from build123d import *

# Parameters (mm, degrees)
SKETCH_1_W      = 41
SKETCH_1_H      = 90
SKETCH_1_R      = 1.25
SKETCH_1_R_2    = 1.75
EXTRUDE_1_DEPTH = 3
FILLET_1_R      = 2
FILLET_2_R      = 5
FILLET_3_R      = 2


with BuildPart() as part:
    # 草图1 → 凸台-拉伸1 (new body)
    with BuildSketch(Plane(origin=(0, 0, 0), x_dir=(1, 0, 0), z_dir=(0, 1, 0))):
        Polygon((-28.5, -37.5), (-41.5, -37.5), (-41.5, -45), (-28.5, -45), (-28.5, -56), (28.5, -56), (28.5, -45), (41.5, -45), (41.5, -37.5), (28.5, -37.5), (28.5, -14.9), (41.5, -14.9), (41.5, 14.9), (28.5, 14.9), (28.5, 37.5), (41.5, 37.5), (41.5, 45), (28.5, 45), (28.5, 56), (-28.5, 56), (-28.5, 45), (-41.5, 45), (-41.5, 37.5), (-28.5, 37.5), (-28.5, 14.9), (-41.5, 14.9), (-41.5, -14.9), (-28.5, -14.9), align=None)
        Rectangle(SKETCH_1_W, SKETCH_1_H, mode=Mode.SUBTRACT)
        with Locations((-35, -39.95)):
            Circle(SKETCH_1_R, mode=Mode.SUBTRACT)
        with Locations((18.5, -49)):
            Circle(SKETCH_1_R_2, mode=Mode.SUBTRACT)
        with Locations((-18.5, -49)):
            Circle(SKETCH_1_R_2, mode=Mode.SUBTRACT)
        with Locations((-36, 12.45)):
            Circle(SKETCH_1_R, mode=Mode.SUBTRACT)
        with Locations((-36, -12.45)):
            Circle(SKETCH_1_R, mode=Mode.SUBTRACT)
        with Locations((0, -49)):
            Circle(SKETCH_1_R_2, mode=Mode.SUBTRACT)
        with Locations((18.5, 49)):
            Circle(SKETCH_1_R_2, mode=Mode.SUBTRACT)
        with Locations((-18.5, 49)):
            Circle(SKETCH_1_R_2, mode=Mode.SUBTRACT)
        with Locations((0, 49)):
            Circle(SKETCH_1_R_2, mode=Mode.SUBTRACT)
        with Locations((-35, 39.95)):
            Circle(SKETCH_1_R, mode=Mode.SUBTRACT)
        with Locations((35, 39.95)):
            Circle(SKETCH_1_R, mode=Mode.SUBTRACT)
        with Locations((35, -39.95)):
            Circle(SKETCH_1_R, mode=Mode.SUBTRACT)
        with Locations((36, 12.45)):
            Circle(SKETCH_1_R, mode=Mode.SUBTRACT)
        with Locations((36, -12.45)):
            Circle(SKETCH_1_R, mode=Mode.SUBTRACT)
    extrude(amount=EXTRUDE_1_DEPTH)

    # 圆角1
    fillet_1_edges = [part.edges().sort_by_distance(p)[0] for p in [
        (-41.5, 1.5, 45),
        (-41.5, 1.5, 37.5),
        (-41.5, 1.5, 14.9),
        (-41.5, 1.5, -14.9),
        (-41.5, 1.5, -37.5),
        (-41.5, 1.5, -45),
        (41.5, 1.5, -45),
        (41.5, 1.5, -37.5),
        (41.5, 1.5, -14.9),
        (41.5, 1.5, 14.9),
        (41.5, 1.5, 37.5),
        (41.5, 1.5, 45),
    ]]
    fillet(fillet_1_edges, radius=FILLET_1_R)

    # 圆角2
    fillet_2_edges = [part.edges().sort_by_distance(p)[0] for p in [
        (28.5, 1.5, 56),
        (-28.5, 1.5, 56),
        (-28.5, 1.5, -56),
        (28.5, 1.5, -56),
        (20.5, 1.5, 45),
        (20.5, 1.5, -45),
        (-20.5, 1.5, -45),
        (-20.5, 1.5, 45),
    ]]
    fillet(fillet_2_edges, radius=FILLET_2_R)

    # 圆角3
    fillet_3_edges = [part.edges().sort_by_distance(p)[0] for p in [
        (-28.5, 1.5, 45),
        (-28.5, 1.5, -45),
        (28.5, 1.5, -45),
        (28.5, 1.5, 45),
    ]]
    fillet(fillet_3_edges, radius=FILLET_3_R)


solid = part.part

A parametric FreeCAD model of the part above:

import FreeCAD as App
import Part
import Sketcher
from FreeCAD import Vector


def edges_at(feature, points):
    """Names of the edges that pass closest to the given points."""
    edges = feature.Shape.Edges
    near = lambda p: min(range(len(edges)), key=lambda i: edges[i].distToShape(Part.Vertex(*p))[0])
    return sorted({f"Edge{near(p) + 1}" for p in points})


def add_polygon(sketch, points):
    """Adds a closed chain of lines whose ends are joined by coincident constraints."""
    first, n = sketch.GeometryCount, len(points)
    for a, b in zip(points, points[1:] + points[:1]):
        sketch.addGeometry(Part.LineSegment(App.Vector(*a, 0), App.Vector(*b, 0)), False)
    for i in range(n):
        sketch.addConstraint(Sketcher.Constraint("Coincident", first + i, 2, first + (i + 1) % n, 1))

doc = App.newDocument("Part")
body = doc.addObject("PartDesign::Body", "Body")

# Sketch on XZ plane
sketch1 = body.newObject("Sketcher::SketchObject", "Sketch")
sketch1.AttachmentSupport = (doc.getObject("XZ_Plane"), [""])
sketch1.MapMode = "FlatFace"
add_polygon(sketch1, [(-28.5, 37.5), (-41.5, 37.5), (-41.5, 45), (-28.5, 45), (-28.5, 56), (28.5, 56), (28.5, 45), (41.5, 45), (41.5, 37.5), (28.5, 37.5), (28.5, 14.9), (41.5, 14.9), (41.5, -14.9), (28.5, -14.9), (28.5, -37.5), (41.5, -37.5), (41.5, -45), (28.5, -45), (28.5, -56), (-28.5, -56), (-28.5, -45), (-41.5, -45), (-41.5, -37.5), (-28.5, -37.5), (-28.5, -14.9), (-41.5, -14.9), (-41.5, 14.9), (-28.5, 14.9)])  # lines 0-27
sketch1.addGeometry(Part.Circle(Vector(-35, 39.95, 0), Vector(0, 0, 1), 1.25), False)  # 28
sketch1.addGeometry(Part.Circle(Vector(-18.5, 49, 0), Vector(0, 0, 1), 1.75), False)  # 29
sketch1.addGeometry(Part.Circle(Vector(-36, 12.45, 0), Vector(0, 0, 1), 1.25), False)  # 30
sketch1.addGeometry(Part.Circle(Vector(0, 49, 0), Vector(0, 0, 1), 1.75), False)  # 31
sketch1.addGeometry(Part.Circle(Vector(18.5, 49, 0), Vector(0, 0, 1), 1.75), False)  # 32
sketch1.addGeometry(Part.Circle(Vector(35, 39.95, 0), Vector(0, 0, 1), 1.25), False)  # 33
sketch1.addGeometry(Part.Circle(Vector(36, 12.45, 0), Vector(0, 0, 1), 1.25), False)  # 34
sketch1.addGeometry(Part.Circle(Vector(-36, -12.45, 0), Vector(0, 0, 1), 1.25), False)  # 35
sketch1.addGeometry(Part.Circle(Vector(-35, -39.95, 0), Vector(0, 0, 1), 1.25), False)  # 36
sketch1.addGeometry(Part.Circle(Vector(-18.5, -49, 0), Vector(0, 0, 1), 1.75), False)  # 37
add_polygon(sketch1, [(20.5, 45), (-20.5, 45), (-20.5, -45), (20.5, -45)])  # lines 38-41
sketch1.addGeometry(Part.Circle(Vector(36, -12.45, 0), Vector(0, 0, 1), 1.25), False)  # 42
sketch1.addGeometry(Part.Circle(Vector(0, -49, 0), Vector(0, 0, 1), 1.75), False)  # 43
sketch1.addGeometry(Part.Circle(Vector(18.5, -49, 0), Vector(0, 0, 1), 1.75), False)  # 44
sketch1.addGeometry(Part.Circle(Vector(35, -39.95, 0), Vector(0, 0, 1), 1.25), False)  # 45
sketch1.addConstraint([
    Sketcher.Constraint("Horizontal", 0),
    Sketcher.Constraint("Vertical", 1),
    Sketcher.Constraint("Horizontal", 2),
    Sketcher.Constraint("Vertical", 3),
    Sketcher.Constraint("Horizontal", 4),
    Sketcher.Constraint("Vertical", 5),
    Sketcher.Constraint("Horizontal", 6),
    Sketcher.Constraint("Vertical", 7),
    Sketcher.Constraint("Horizontal", 8),
    Sketcher.Constraint("Vertical", 9),
    Sketcher.Constraint("Horizontal", 10),
    Sketcher.Constraint("Vertical", 11),
    Sketcher.Constraint("Horizontal", 12),
    Sketcher.Constraint("Vertical", 13),
    Sketcher.Constraint("Horizontal", 14),
    Sketcher.Constraint("Vertical", 15),
    Sketcher.Constraint("Horizontal", 16),
    Sketcher.Constraint("Vertical", 17),
    Sketcher.Constraint("Horizontal", 18),
    Sketcher.Constraint("Vertical", 19),
    Sketcher.Constraint("Horizontal", 20),
    Sketcher.Constraint("Vertical", 21),
    Sketcher.Constraint("Horizontal", 22),
    Sketcher.Constraint("Vertical", 23),
    Sketcher.Constraint("Horizontal", 24),
    Sketcher.Constraint("Vertical", 25),
    Sketcher.Constraint("Horizontal", 26),
    Sketcher.Constraint("Vertical", 27),
    Sketcher.Constraint("Horizontal", 38),
    Sketcher.Constraint("Vertical", 39),
    Sketcher.Constraint("Horizontal", 40),
    Sketcher.Constraint("Vertical", 41),
    Sketcher.Constraint("Equal", 28, 30),
    Sketcher.Constraint("Equal", 29, 31),
    Sketcher.Constraint("Equal", 31, 32),
    Sketcher.Constraint("Equal", 30, 33),
    Sketcher.Constraint("Equal", 33, 34),
    Sketcher.Constraint("Equal", 34, 35),
    Sketcher.Constraint("Equal", 35, 36),
    Sketcher.Constraint("Equal", 32, 37),
    Sketcher.Constraint("Equal", 36, 42),
    Sketcher.Constraint("Equal", 37, 43),
    Sketcher.Constraint("Equal", 43, 44),
    Sketcher.Constraint("Equal", 42, 45),
    Sketcher.Constraint("Symmetric", 34, 3, 35, 3, -1, 1),
    Sketcher.Constraint("Symmetric", 33, 3, 36, 3, -1, 1),
    Sketcher.Constraint("Symmetric", 32, 3, 37, 3, -1, 1),
    Sketcher.Constraint("Symmetric", 30, 3, 42, 3, -1, 1),
    Sketcher.Constraint("Symmetric", 31, 3, 43, 3, -1, 1),
    Sketcher.Constraint("Symmetric", 29, 3, 44, 3, -1, 1),
    Sketcher.Constraint("Symmetric", 28, 3, 45, 3, -1, 1),
    Sketcher.Constraint("Symmetric", 0, 2, 14, 2, -1, 1),
    Sketcher.Constraint("Symmetric", 2, 2, 16, 2, -1, 1),
    Sketcher.Constraint("Symmetric", 4, 2, 18, 2, -1, 1),
    Sketcher.Constraint("Symmetric", 6, 2, 20, 2, -1, 1),
    Sketcher.Constraint("Symmetric", 8, 2, 22, 2, -1, 1),
    Sketcher.Constraint("Symmetric", 10, 2, 24, 2, -1, 1),
    Sketcher.Constraint("Symmetric", 12, 2, 26, 2, -1, 1),
    Sketcher.Constraint("Symmetric", 38, 2, 40, 2, -1, 1),
    Sketcher.Constraint("Symmetric", 29, 3, 32, 3, -2),
    Sketcher.Constraint("Symmetric", 28, 3, 33, 3, -2),
    Sketcher.Constraint("Symmetric", 30, 3, 34, 3, -2),
    Sketcher.Constraint("Symmetric", 2, 2, 5, 2, -2),
    Sketcher.Constraint("Symmetric", 0, 2, 7, 2, -2),
    Sketcher.Constraint("Symmetric", 12, 2, 23, 2, -2),
    Sketcher.Constraint("PointOnObject", 31, 3, -2),
    Sketcher.Constraint("Horizontal", 29, 3, 31, 3),
    Sketcher.Constraint("Horizontal", 6, 2, 38, 2),
    Sketcher.Constraint("Vertical", 5, 2, 8, 2),
    Sketcher.Constraint("Vertical", 7, 2, 10, 2),
    Sketcher.Constraint("Diameter", 28, 2.5),
    Sketcher.Constraint("Diameter", 29, 3.5),
    Sketcher.Constraint("DistanceX", 0, 2, 0, 1, 13.0),
    Sketcher.Constraint("DistanceX", 4, 1, 4, 2, 57.0),
    Sketcher.Constraint("DistanceX", 38, 2, 38, 1, 41.0),
    Sketcher.Constraint("DistanceY", 3, 1, 3, 2, 11.0),
    Sketcher.Constraint("DistanceY", 39, 2, 39, 1, 90.0),
    Sketcher.Constraint("DistanceY", 1, 1, 1, 2, 7.5),
    Sketcher.Constraint("DistanceY", 9, 2, 9, 1, 22.6),
    Sketcher.Constraint("DistanceX", 28, 3, -1, 1, 35.0),
    Sketcher.Constraint("DistanceY", -1, 1, 29, 3, 49.0),
    Sketcher.Constraint("DistanceX", 30, 3, -1, 1, 36.0),
    Sketcher.Constraint("DistanceX", 29, 3, 32, 3, 37.0),
    Sketcher.Constraint("DistanceY", 30, 3, 28, 3, 27.5),
    Sketcher.Constraint("DistanceY", 35, 3, 30, 3, 24.9),
])
pad1 = body.newObject("PartDesign::Pad", "Pad")
pad1.Profile = sketch1
pad1.Length = 3
pad1.Reversed = True
doc.recompute()

fillet = body.newObject("PartDesign::Fillet", "Fillet")
fillet.Base = (pad1, edges_at(pad1, [
    (-41.5, 1.5, 45),
    (-41.5, 1.5, 37.5),
    (-41.5, 1.5, 14.9),
    (-41.5, 1.5, -14.9),
    (-41.5, 1.5, -37.5),
    (-41.5, 1.5, -45),
    (41.5, 1.5, -45),
    (41.5, 1.5, -37.5),
    (41.5, 1.5, -14.9),
    (41.5, 1.5, 14.9),
    (41.5, 1.5, 37.5),
    (41.5, 1.5, 45),
]))
fillet.Radius = 2
doc.recompute()

fillet2 = body.newObject("PartDesign::Fillet", "Fillet001")
fillet2.Base = (fillet, edges_at(fillet, [
    (28.5, 1.5, 56),
    (-28.5, 1.5, 56),
    (-28.5, 1.5, -56),
    (28.5, 1.5, -56),
    (20.5, 1.5, 45),
    (20.5, 1.5, -45),
    (-20.5, 1.5, -45),
    (-20.5, 1.5, 45),
]))
fillet2.Radius = 5
doc.recompute()

fillet3 = body.newObject("PartDesign::Fillet", "Fillet002")
fillet3.Base = (fillet2, edges_at(fillet2, [
    (-28.5, 1.5, 45),
    (-28.5, 1.5, -45),
    (28.5, 1.5, -45),
    (28.5, 1.5, 45),
]))
fillet3.Radius = 2

doc.recompute()
